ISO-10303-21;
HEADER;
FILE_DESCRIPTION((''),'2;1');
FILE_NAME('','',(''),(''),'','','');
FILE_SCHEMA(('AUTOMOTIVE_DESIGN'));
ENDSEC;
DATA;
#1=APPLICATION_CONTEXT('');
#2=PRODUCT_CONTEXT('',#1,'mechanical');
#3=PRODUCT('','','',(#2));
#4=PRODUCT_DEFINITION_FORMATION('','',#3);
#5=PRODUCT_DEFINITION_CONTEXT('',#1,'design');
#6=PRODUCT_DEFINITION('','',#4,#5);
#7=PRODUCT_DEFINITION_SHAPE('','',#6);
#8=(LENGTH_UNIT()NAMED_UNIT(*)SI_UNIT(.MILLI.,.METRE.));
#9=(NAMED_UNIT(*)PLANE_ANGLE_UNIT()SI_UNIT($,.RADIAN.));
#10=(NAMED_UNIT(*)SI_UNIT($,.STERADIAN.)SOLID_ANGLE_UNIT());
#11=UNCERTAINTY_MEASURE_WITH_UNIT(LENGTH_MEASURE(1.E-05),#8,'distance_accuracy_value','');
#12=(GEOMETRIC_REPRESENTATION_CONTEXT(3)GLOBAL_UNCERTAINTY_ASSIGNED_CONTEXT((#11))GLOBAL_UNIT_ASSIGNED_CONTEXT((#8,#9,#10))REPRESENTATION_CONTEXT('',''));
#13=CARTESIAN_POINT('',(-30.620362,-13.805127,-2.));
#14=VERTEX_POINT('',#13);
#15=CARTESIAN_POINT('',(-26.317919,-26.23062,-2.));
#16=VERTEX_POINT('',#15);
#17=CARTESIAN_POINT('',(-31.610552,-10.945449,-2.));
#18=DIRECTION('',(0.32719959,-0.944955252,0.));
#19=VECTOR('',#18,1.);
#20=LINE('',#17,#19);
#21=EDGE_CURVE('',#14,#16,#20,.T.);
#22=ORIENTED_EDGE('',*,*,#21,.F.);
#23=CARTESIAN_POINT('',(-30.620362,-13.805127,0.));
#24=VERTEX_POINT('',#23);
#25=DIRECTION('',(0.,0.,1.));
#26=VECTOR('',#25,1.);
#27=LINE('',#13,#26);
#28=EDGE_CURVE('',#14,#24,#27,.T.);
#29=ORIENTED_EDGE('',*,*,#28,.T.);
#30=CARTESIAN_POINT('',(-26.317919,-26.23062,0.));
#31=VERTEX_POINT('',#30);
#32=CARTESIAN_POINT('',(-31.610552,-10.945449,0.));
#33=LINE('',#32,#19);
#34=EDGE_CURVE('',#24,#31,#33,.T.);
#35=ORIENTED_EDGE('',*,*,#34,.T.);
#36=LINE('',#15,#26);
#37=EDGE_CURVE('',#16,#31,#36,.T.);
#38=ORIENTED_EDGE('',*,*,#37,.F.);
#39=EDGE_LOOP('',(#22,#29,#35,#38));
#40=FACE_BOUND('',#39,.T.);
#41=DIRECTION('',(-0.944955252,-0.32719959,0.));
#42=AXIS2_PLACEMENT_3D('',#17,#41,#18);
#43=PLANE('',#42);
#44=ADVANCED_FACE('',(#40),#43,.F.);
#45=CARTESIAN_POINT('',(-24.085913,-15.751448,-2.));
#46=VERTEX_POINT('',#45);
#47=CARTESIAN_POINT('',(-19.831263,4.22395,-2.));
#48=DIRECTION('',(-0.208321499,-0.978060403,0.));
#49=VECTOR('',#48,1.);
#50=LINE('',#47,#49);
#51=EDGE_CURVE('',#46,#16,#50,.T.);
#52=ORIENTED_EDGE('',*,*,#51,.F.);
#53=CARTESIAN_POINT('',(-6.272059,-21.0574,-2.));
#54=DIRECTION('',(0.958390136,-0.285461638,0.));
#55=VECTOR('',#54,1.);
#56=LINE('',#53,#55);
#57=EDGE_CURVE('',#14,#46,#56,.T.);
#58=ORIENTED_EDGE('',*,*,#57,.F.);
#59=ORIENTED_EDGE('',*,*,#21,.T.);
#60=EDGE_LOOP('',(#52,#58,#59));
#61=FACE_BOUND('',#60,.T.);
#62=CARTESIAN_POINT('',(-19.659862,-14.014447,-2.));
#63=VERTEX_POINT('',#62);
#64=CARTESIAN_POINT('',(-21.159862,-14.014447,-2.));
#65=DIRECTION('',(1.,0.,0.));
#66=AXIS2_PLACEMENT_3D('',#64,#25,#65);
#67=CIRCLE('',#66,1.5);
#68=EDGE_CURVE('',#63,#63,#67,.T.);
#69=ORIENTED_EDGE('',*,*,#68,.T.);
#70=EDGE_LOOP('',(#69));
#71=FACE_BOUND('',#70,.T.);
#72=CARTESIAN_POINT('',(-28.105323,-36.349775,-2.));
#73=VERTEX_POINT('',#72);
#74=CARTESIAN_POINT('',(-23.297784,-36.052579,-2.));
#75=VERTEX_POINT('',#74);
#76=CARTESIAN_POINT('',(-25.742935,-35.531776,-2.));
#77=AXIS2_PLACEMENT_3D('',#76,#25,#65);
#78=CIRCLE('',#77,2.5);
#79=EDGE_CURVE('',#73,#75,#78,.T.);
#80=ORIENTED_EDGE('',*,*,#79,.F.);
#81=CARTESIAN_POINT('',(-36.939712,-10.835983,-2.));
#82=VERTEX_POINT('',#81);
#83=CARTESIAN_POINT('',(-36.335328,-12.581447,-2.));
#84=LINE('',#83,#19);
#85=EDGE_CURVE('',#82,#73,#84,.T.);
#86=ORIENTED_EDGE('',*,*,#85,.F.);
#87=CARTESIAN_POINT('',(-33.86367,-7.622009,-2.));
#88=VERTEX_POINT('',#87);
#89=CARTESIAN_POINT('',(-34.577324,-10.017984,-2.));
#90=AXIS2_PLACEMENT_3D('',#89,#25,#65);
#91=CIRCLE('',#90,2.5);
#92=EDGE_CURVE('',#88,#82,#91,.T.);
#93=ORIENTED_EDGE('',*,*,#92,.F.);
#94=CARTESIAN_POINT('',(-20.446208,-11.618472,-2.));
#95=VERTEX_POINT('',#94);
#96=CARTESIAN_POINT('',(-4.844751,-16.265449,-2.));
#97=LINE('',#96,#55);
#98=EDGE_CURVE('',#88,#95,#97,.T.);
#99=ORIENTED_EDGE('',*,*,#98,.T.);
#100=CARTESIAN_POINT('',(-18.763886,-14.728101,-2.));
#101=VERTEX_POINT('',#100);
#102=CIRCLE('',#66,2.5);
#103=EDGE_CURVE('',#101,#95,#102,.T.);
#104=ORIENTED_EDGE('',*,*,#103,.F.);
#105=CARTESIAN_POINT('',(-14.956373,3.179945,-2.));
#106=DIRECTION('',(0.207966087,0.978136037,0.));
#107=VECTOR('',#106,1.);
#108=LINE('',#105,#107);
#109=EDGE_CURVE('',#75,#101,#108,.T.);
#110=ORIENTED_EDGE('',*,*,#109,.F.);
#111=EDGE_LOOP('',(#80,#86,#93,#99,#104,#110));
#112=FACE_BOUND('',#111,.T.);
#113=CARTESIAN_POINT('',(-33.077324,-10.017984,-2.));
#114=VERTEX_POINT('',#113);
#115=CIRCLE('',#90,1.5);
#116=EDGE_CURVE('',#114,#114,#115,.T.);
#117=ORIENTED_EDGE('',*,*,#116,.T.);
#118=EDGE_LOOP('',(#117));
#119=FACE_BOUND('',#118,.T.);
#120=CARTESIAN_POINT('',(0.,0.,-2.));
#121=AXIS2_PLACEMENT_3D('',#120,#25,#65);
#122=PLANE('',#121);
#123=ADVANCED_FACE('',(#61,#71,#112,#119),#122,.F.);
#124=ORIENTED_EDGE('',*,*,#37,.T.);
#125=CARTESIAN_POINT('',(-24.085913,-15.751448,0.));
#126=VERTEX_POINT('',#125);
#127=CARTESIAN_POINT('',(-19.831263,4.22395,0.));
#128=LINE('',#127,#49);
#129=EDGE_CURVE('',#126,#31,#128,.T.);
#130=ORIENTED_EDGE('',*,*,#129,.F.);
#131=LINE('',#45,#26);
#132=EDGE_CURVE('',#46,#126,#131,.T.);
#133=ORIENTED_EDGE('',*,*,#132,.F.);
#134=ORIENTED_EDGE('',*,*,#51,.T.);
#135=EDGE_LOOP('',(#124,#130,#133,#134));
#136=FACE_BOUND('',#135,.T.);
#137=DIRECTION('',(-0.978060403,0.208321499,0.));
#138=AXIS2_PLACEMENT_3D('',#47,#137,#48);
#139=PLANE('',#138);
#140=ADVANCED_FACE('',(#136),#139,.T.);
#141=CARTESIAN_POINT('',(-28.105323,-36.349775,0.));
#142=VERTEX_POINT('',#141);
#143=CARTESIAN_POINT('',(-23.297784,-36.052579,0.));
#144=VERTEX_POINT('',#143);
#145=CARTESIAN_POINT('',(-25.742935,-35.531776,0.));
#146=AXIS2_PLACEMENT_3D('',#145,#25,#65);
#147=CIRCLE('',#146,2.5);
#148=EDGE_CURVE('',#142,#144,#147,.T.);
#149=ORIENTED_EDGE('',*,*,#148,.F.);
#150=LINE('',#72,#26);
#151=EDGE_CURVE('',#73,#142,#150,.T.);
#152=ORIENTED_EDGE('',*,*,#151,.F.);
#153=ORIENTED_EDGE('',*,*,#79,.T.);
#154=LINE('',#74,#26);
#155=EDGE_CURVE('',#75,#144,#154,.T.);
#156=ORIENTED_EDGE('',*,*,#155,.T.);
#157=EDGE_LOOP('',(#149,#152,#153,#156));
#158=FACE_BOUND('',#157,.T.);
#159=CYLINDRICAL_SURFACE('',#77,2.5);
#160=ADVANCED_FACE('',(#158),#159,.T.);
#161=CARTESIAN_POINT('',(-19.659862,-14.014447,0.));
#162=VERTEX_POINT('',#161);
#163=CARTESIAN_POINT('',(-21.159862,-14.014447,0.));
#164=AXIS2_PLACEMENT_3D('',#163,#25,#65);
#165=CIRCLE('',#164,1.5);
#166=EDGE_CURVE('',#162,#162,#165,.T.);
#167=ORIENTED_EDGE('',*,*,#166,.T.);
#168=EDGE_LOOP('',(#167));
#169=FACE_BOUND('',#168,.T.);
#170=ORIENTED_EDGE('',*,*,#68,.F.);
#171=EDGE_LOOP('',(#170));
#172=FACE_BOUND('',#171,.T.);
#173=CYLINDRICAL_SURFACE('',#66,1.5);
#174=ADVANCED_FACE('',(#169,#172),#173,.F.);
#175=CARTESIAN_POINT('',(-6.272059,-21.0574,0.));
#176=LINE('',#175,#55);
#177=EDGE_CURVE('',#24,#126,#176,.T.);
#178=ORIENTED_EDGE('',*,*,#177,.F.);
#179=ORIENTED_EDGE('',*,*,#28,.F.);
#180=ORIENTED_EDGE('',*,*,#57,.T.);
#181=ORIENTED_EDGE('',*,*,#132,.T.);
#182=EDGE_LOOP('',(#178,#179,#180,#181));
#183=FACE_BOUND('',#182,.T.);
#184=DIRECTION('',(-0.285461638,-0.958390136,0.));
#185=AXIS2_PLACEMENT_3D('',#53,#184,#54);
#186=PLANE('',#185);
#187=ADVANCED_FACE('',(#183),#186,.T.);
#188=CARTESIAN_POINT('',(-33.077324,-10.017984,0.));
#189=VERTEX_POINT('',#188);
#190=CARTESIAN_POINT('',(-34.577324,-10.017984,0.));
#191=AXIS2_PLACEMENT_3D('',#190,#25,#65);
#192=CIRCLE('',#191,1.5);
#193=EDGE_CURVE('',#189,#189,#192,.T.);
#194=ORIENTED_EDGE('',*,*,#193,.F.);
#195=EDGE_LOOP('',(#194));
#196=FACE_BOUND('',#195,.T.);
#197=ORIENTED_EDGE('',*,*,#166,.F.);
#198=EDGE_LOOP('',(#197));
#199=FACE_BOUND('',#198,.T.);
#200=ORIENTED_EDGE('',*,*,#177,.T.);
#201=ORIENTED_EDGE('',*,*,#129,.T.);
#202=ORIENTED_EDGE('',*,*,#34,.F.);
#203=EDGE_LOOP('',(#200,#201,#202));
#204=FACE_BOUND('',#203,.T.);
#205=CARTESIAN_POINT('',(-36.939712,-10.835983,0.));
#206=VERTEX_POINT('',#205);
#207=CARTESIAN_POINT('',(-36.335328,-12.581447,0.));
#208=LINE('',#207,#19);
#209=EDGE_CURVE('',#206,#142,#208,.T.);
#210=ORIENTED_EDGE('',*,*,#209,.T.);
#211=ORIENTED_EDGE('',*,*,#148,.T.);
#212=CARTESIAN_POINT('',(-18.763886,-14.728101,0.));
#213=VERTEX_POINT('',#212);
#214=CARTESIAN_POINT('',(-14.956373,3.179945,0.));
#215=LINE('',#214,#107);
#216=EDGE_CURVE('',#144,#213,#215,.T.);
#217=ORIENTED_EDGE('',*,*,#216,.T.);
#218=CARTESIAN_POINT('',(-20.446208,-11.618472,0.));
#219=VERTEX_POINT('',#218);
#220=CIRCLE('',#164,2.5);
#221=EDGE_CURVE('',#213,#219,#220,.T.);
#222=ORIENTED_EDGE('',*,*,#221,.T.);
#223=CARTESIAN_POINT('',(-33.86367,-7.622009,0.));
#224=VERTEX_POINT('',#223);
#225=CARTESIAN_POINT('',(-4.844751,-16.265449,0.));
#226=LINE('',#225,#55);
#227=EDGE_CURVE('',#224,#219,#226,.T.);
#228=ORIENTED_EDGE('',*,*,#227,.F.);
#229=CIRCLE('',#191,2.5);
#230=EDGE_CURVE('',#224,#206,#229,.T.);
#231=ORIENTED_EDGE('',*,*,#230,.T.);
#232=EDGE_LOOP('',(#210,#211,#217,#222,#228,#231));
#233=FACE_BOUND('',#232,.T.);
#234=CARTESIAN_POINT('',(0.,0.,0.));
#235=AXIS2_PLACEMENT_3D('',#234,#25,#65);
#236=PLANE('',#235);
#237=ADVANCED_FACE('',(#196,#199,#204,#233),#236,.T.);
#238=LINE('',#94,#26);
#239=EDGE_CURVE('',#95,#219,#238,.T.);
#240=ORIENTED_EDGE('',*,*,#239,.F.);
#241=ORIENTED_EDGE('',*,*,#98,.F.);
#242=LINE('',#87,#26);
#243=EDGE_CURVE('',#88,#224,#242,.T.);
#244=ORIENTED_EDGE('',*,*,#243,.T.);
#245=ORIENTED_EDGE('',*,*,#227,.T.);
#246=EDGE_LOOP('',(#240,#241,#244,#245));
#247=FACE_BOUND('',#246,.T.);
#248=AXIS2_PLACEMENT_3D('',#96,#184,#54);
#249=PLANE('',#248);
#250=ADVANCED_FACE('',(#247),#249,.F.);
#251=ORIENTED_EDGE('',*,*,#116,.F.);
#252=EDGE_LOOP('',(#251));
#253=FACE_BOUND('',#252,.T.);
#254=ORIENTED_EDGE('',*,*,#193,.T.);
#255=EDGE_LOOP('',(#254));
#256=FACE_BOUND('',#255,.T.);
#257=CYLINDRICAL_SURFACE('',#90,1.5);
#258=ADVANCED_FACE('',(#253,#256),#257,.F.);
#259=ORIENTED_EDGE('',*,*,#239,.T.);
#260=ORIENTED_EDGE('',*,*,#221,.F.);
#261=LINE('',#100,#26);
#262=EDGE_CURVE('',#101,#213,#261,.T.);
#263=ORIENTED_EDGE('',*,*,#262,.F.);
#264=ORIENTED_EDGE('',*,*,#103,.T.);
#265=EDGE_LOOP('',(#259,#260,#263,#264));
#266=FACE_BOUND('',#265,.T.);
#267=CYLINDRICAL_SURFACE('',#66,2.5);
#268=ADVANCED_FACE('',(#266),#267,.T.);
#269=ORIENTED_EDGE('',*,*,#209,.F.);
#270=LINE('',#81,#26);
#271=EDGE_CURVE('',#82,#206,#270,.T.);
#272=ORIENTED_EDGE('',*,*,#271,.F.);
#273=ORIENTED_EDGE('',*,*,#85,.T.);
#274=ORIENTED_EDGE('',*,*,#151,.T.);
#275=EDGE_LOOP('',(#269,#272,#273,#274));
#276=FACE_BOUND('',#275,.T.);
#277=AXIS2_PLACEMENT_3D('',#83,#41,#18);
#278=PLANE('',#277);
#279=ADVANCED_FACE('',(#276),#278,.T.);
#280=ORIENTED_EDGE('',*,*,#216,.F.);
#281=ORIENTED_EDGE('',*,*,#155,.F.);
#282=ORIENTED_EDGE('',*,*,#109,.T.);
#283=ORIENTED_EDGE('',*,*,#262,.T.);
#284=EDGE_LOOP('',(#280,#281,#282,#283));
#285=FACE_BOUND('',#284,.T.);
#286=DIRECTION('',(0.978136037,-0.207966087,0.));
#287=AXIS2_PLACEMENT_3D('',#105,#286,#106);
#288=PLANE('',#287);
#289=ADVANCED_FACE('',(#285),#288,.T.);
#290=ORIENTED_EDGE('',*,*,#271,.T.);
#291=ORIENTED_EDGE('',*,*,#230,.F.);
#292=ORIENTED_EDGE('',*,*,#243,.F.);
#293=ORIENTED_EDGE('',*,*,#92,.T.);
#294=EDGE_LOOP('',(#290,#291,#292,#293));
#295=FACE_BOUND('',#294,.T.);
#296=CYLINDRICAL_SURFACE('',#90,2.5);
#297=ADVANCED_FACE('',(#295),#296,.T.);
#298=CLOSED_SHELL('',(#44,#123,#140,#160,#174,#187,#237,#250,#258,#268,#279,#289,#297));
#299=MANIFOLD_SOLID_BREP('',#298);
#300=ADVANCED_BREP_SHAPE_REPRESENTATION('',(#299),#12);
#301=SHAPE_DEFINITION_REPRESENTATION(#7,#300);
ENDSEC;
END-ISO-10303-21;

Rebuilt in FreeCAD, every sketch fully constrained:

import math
import FreeCAD as App
import Part
import Sketcher
Q = App.Units.Quantity

doc = App.newDocument("Part")
body = doc.addObject("PartDesign::Body", "Body")

sketch1 = body.newObject("Sketcher::SketchObject", "Sketch")
sketch1.AttachmentSupport = (doc.getObject("XY_Plane"), [""])
sketch1.MapMode = "FlatFace"
sketch1.addGeometry(Part.LineSegment(App.Vector(-36.939712, -10.835983, 0), App.Vector(-28.105323, -36.349775, 0)), False)
sketch1.addGeometry(Part.ArcOfCircle(Part.Circle(App.Vector(-25.742935, -35.531776, 0), App.Vector(0, 0, 1), 2.5), math.radians(-160.90111), math.radians(-12.024006)), False)
sketch1.addGeometry(Part.LineSegment(App.Vector(-23.297784, -36.052579, 0), App.Vector(-18.763886, -14.728101, 0)), False)
sketch1.addGeometry(Part.ArcOfCircle(Part.Circle(App.Vector(-21.159862, -14.014447, 0), App.Vector(0, 0, 1), 2.5), math.radians(-16.586445), math.radians(73.413555)), False)
sketch1.addGeometry(Part.LineSegment(App.Vector(-20.446208, -11.618472, 0), App.Vector(-33.86367, -7.622009, 0)), False)
sketch1.addGeometry(Part.ArcOfCircle(Part.Circle(App.Vector(-34.577324, -10.017984, 0), App.Vector(0, 0, 1), 2.5), math.radians(73.413555), math.radians(199.09889)), False)
sketch1.addGeometry(Part.LineSegment(App.Vector(-30.620362, -13.805127, 0), App.Vector(-24.085913, -15.751448, 0)), False)
sketch1.addGeometry(Part.LineSegment(App.Vector(-24.085913, -15.751448, 0), App.Vector(-26.317919, -26.23062, 0)), False)
sketch1.addGeometry(Part.LineSegment(App.Vector(-26.317919, -26.23062, 0), App.Vector(-30.620362, -13.805127, 0)), False)
sketch1.addConstraint(Sketcher.Constraint("Tangent", 0, 2, 1, 1))
sketch1.addConstraint(Sketcher.Constraint("Coincident", 1, 2, 2, 1))
sketch1.addConstraint(Sketcher.Constraint("Coincident", 2, 2, 3, 1))
sketch1.addConstraint(Sketcher.Constraint("Tangent", 3, 2, 4, 1))
sketch1.addConstraint(Sketcher.Constraint("Tangent", 4, 2, 5, 1))
sketch1.addConstraint(Sketcher.Constraint("Tangent", 5, 2, 0, 1))
sketch1.addConstraint(Sketcher.Constraint("Coincident", 6, 2, 7, 1))
sketch1.addConstraint(Sketcher.Constraint("Coincident", 7, 2, 8, 1))
sketch1.addConstraint(Sketcher.Constraint("Coincident", 8, 2, 6, 1))
sketch1.addConstraint(Sketcher.Constraint("Equal", 1, 3))
sketch1.addConstraint(Sketcher.Constraint("Equal", 3, 5))
sketch1.addConstraint(Sketcher.Constraint("Parallel", 4, 6))
sketch1.addConstraint(Sketcher.Constraint("Parallel", 0, 8))
sketch1.addConstraint(Sketcher.Constraint("Radius", 1, Q("2.5 mm")))
sketch1.addConstraint(Sketcher.Constraint("Distance", 0, Q("27 mm")))
sketch1.addConstraint(Sketcher.Constraint("Distance", 4, Q("14 mm")))
sketch1.addConstraint(Sketcher.Constraint("DistanceY", 0, 2, 1, 3, Q("0.817999 mm")))
sketch1.addConstraint(Sketcher.Constraint("DistanceY", 6, 2, 3, 3, Q("1.737001 mm")))
sketch1.addConstraint(Sketcher.Constraint("DistanceY", 2, 2, -1, 1, Q("14.728101 mm")))
sketch1.addConstraint(Sketcher.Constraint("DistanceX", 8, 2, 3, 3, Q("9.4605 mm")))
sketch1.addConstraint(Sketcher.Constraint("Distance", 6, Q("6.818152 mm")))
sketch1.addConstraint(Sketcher.Constraint("Distance", 7, Q("10.714238 mm")))
sketch1.addConstraint(Sketcher.Constraint("DistanceX", 3, 3, -1, 1, Q("21.159862 mm")))
sketch1.addConstraint(Sketcher.Constraint("DistanceY", 1, 2, -1, 1, Q("36.052579 mm")))
sketch1.addConstraint(Sketcher.Constraint("DistanceY", 3, 2, -1, 1, Q("11.618472 mm")))
sketch1.addConstraint(Sketcher.Constraint("DistanceX", 4, 2, -1, 1, Q("33.86367 mm")))
pad1 = body.newObject("PartDesign::Pad", "Pad")
pad1.Profile = sketch1
pad1.Length = 2
pad1.Reversed = True

sketch2 = body.newObject("Sketcher::SketchObject", "Sketch001")
sketch2.AttachmentSupport = (doc.getObject("XY_Plane"), [""])
sketch2.MapMode = "FlatFace"
sketch2.addGeometry(Part.Circle(App.Vector(-34.577324, -10.017984, 0), App.Vector(0, 0, 1), 1.5), False)
sketch2.addGeometry(Part.Circle(App.Vector(-21.159862, -14.014447, 0), App.Vector(0, 0, 1), 1.5), False)
sketch2.addConstraint(Sketcher.Constraint("Equal", 0, 1))
sketch2.addConstraint(Sketcher.Constraint("Diameter", 0, Q("3 mm")))
sketch2.addConstraint(Sketcher.Constraint("DistanceX", 1, 3, -1, 1, Q("21.159862 mm")))
sketch2.addConstraint(Sketcher.Constraint("DistanceX", 0, 3, 1, 3, Q("13.417462 mm")))
sketch2.addConstraint(Sketcher.Constraint("DistanceY", 0, 3, -1, 1, Q("10.017984 mm")))
sketch2.addConstraint(Sketcher.Constraint("DistanceY", 1, 3, -1, 1, Q("14.014447 mm")))
pocket1 = body.newObject("PartDesign::Pocket", "Pocket")
pocket1.Profile = sketch2
pocket1.Length = 2

doc.recompute()
